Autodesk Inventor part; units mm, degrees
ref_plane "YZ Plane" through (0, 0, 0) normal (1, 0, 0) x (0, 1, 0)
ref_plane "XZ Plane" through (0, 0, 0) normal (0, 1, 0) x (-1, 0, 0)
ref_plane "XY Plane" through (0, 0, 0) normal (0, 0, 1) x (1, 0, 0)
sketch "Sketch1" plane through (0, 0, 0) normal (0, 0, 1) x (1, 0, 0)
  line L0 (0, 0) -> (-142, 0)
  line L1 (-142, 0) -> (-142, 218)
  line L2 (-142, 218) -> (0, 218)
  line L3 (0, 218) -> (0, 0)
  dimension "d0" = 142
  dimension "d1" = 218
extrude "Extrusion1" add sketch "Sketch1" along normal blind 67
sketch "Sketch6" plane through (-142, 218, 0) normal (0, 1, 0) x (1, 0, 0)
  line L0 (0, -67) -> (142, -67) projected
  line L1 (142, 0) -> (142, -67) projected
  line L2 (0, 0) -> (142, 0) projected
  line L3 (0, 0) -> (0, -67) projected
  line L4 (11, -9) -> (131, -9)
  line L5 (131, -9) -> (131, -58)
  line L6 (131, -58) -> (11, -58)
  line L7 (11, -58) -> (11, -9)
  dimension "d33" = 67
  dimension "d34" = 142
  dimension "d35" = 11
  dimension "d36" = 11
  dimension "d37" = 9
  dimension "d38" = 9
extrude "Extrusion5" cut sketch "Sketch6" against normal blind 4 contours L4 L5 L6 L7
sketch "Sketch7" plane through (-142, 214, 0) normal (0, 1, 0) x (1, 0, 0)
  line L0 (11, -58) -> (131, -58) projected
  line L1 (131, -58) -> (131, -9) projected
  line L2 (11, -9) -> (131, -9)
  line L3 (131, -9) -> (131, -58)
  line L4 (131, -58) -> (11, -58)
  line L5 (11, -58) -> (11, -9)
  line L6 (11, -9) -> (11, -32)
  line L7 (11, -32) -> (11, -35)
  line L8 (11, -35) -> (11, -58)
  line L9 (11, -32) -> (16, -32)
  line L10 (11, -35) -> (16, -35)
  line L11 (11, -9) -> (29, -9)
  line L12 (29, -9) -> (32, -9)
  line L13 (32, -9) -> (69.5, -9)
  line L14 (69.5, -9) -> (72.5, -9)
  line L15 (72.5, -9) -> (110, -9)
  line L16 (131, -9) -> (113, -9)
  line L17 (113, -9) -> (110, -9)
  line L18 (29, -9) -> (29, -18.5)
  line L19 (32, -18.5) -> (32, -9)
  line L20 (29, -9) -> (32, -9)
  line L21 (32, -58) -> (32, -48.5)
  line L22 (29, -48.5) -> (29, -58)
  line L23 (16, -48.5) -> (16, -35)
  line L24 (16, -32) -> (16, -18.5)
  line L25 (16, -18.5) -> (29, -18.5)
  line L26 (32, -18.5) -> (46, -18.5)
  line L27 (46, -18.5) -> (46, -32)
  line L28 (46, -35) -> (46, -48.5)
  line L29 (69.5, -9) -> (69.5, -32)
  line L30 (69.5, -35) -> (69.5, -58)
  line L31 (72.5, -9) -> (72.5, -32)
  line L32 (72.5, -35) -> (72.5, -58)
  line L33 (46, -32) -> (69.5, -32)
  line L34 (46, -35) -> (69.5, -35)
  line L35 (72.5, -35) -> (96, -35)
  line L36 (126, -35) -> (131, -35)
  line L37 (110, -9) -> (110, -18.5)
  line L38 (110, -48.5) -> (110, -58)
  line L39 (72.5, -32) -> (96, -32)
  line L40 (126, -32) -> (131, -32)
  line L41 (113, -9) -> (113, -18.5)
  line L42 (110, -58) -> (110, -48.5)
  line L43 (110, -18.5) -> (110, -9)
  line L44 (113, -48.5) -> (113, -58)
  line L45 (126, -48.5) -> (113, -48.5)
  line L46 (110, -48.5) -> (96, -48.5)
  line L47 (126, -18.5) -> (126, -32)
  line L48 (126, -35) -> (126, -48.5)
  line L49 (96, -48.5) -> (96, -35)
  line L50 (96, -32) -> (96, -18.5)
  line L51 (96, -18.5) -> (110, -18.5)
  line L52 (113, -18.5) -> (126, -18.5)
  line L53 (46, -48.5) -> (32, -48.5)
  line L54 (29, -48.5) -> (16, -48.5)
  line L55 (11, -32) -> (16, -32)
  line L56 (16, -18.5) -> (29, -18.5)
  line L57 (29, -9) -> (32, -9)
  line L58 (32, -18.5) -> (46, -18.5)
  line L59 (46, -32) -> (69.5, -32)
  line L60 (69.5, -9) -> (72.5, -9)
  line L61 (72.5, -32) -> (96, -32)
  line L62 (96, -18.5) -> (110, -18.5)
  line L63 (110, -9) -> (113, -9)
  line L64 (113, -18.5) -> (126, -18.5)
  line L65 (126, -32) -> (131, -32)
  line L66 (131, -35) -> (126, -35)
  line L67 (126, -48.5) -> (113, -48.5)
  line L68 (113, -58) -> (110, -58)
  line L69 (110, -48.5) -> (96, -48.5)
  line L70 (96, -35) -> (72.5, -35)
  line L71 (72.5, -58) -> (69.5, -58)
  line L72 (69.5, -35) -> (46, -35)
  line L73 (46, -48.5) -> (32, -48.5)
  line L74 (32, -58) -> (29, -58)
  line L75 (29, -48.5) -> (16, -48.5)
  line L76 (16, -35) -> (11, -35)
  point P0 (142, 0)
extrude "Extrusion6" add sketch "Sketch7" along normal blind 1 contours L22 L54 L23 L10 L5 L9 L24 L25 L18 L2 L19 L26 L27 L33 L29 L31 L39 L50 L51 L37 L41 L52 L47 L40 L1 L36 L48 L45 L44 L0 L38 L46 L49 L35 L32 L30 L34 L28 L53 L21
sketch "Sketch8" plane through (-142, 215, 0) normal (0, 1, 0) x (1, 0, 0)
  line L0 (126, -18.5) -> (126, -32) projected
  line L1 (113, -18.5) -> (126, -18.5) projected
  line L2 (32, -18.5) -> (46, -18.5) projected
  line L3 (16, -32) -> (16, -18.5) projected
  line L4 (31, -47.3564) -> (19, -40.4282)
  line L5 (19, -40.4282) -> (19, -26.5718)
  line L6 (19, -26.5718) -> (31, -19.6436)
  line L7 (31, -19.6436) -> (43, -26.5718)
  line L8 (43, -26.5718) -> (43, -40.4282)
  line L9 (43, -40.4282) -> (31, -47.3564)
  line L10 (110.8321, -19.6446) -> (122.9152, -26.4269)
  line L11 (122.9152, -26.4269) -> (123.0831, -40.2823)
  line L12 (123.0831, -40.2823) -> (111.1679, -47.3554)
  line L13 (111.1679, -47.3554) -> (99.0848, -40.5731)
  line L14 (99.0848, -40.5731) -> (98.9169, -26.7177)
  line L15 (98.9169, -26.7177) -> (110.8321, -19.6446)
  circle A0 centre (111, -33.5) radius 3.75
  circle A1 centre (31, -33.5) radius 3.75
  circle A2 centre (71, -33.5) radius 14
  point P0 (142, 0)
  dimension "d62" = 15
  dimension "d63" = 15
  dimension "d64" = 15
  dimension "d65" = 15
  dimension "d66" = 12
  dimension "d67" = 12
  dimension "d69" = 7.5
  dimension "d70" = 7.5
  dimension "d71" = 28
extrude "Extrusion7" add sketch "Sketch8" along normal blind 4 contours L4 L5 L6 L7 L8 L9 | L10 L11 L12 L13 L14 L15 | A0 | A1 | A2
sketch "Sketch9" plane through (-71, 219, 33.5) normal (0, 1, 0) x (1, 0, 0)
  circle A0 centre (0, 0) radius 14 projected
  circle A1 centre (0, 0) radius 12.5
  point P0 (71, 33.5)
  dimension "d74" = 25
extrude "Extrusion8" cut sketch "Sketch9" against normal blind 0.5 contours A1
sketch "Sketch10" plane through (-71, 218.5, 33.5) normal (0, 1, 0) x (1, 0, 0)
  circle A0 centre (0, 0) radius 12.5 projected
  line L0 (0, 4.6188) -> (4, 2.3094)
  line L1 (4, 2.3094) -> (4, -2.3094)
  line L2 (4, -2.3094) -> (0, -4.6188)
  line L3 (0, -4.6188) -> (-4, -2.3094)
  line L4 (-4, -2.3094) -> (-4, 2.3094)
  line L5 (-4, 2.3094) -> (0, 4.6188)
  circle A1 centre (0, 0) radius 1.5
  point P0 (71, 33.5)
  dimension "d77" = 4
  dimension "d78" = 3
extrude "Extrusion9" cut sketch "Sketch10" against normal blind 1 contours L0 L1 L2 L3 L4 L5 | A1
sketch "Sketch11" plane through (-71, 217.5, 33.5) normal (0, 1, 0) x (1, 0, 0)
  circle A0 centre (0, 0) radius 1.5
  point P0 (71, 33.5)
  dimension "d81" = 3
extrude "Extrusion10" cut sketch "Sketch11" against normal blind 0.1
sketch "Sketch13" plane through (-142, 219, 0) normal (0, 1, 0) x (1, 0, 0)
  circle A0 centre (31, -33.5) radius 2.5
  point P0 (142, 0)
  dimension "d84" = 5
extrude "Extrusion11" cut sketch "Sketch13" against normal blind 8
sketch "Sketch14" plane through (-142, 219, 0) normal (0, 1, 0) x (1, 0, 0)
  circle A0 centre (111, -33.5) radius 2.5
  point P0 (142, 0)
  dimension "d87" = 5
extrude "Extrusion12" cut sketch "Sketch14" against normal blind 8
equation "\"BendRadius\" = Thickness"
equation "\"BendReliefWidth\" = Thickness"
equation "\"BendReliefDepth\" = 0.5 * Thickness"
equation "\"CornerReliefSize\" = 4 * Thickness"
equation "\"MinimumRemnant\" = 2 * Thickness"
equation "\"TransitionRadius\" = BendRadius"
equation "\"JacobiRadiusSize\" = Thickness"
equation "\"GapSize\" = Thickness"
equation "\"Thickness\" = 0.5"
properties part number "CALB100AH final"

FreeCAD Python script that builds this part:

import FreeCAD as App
import Part
import Sketcher
Q = App.Units.Quantity


def add_polygon(sketch, points):
    """Adds a closed chain of lines whose ends are joined by coincident constraints."""
    first, n = sketch.GeometryCount, len(points)
    for a, b in zip(points, points[1:] + points[:1]):
        sketch.addGeometry(Part.LineSegment(App.Vector(*a, 0), App.Vector(*b, 0)), False)
    for i in range(n):
        sketch.addConstraint(Sketcher.Constraint("Coincident", first + i, 2, first + (i + 1) % n, 1))

doc = App.newDocument("Part")
body = doc.addObject("PartDesign::Body", "Body")

# Sketch on XY plane
sketch1 = doc.addObject("Sketcher::SketchObject", "Sketch")
body.addObject(sketch1)
sketch1.AttachmentSupport = (doc.XY_Plane, [""])
sketch1.MapMode = "FlatFace"
add_polygon(sketch1, [(-142, 0), (0, 0), (0, 218), (-142, 218)])  # lines 0-3
sketch1.addConstraint([
    Sketcher.Constraint("Horizontal", 0),
    Sketcher.Constraint("Vertical", 1),
    Sketcher.Constraint("Horizontal", 2),
    Sketcher.Constraint("Vertical", 3),
    Sketcher.Constraint("Coincident", 0, 2, -1, 1),
    Sketcher.Constraint("DistanceX", 0, 1, 0, 2, Q("142 mm")),
    Sketcher.Constraint("DistanceY", 1, 1, 1, 2, Q("218 mm")),
])
pad1 = doc.addObject("PartDesign::Pad", "Pad")
body.addObject(pad1)
pad1.Profile = sketch1
pad1.Length = 67

# Sketch on XZ plane
sketch2 = doc.addObject("Sketcher::SketchObject", "Sketch001")
body.addObject(sketch2)
sketch2.AttachmentSupport = (doc.XZ_Plane, [""])
sketch2.MapMode = "FlatFace"
sketch2.AttachmentOffset = App.Placement(App.Vector(0, 0, -218), App.Rotation())
add_polygon(sketch2, [(-11, 9), (-131, 9), (-131, 58), (-11, 58)])  # lines 0-3
sketch2.addConstraint([
    Sketcher.Constraint("Horizontal", 0),
    Sketcher.Constraint("Vertical", 1),
    Sketcher.Constraint("Horizontal", 2),
    Sketcher.Constraint("Vertical", 3),
    Sketcher.Constraint("DistanceY", -1, 1, 0, 2, Q("9 mm")),
    Sketcher.Constraint("DistanceX", 2, 2, -1, 1, Q("11 mm")),
    Sketcher.Constraint("DistanceX", 0, 2, 0, 1, Q("120 mm")),
    Sketcher.Constraint("DistanceY", 1, 1, 1, 2, Q("49 mm")),
])
pocket1 = doc.addObject("PartDesign::Pocket", "Pocket")
body.addObject(pocket1)
pocket1.Profile = sketch2
pocket1.Length = 4
pocket1.Reversed = True

# Sketch on XZ plane
sketch3 = doc.addObject("Sketcher::SketchObject", "Sketch002")
body.addObject(sketch3)
sketch3.AttachmentSupport = (doc.XZ_Plane, [""])
sketch3.MapMode = "FlatFace"
sketch3.AttachmentOffset = App.Placement(App.Vector(0, 0, -214), App.Rotation())
add_polygon(sketch3, [(-113, 48.5), (-113, 58), (-110, 58), (-110, 48.5), (-96, 48.5), (-96, 35), (-72.5, 35), (-72.5, 58), (-69.5, 58), (-69.5, 35), (-46, 35), (-46, 48.5), (-32, 48.5), (-32, 58), (-29, 58), (-29, 48.5), (-16, 48.5), (-16, 35), (-11, 35), (-11, 32), (-16, 32), (-16, 18.5), (-29, 18.5), (-29, 9), (-32, 9), (-32, 18.5), (-46, 18.5), (-46, 32), (-69.5, 32), (-69.5, 9), (-72.5, 9), (-72.5, 32), (-96, 32), (-96, 18.5), (-110, 18.5), (-110, 9), (-113, 9), (-113, 18.5), (-126, 18.5), (-126, 32), (-131, 32), (-131, 35), (-126, 35), (-126, 48.5)])  # lines 0-43
sketch3.addConstraint([
    Sketcher.Constraint("Vertical", 0),
    Sketcher.Constraint("Horizontal", 1),
    Sketcher.Constraint("Vertical", 2),
    Sketcher.Constraint("Horizontal", 3),
    Sketcher.Constraint("Vertical", 4),
    Sketcher.Constraint("Horizontal", 5),
    Sketcher.Constraint("Vertical", 6),
    Sketcher.Constraint("Horizontal", 7),
    Sketcher.Constraint("Vertical", 8),
    Sketcher.Constraint("Horizontal", 9),
    Sketcher.Constraint("Vertical", 10),
    Sketcher.Constraint("Horizontal", 11),
    Sketcher.Constraint("Vertical", 12),
    Sketcher.Constraint("Horizontal", 13),
    Sketcher.Constraint("Vertical", 14),
    Sketcher.Constraint("Horizontal", 15),
    Sketcher.Constraint("Vertical", 16),
    Sketcher.Constraint("Horizontal", 17),
    Sketcher.Constraint("Vertical", 18),
    Sketcher.Constraint("Horizontal", 19),
    Sketcher.Constraint("Vertical", 20),
    Sketcher.Constraint("Horizontal", 21),
    Sketcher.Constraint("Vertical", 22),
    Sketcher.Constraint("Horizontal", 23),
    Sketcher.Constraint("Vertical", 24),
    Sketcher.Constraint("Horizontal", 25),
    Sketcher.Constraint("Vertical", 26),
    Sketcher.Constraint("Horizontal", 27),
    Sketcher.Constraint("Vertical", 28),
    Sketcher.Constraint("Horizontal", 29),
    Sketcher.Constraint("Vertical", 30),
    Sketcher.Constraint("Horizontal", 31),
    Sketcher.Constraint("Vertical", 32),
    Sketcher.Constraint("Horizontal", 33),
    Sketcher.Constraint("Vertical", 34),
    Sketcher.Constraint("Horizontal", 35),
    Sketcher.Constraint("Vertical", 36),
    Sketcher.Constraint("Horizontal", 37),
    Sketcher.Constraint("Vertical", 38),
    Sketcher.Constraint("Horizontal", 39),
    Sketcher.Constraint("Vertical", 40),
    Sketcher.Constraint("Horizontal", 41),
    Sketcher.Constraint("Vertical", 42),
    Sketcher.Constraint("Horizontal", 43),
    Sketcher.Constraint("Horizontal", 1, 2, 6, 2),
    Sketcher.Constraint("Horizontal", 5, 2, 8, 2),
    Sketcher.Constraint("Horizontal", 3, 2, 10, 2),
    Sketcher.Constraint("Horizontal", 7, 2, 12, 2),
    Sketcher.Constraint("Horizontal", 11, 2, 14, 2),
    Sketcher.Constraint("Horizontal", 9, 2, 16, 2),
    Sketcher.Constraint("Horizontal", 21, 2, 24, 2),
    Sketcher.Constraint("Horizontal", 19, 2, 26, 2),
    Sketcher.Constraint("Horizontal", 23, 2, 28, 2),
    Sketcher.Constraint("Horizontal", 27, 2, 30, 2),
    Sketcher.Constraint("Horizontal", 25, 2, 32, 2),
    Sketcher.Constraint("Horizontal", 29, 2, 34, 2),
    Sketcher.Constraint("Horizontal", 33, 2, 36, 2),
    Sketcher.Constraint("Horizontal", 31, 2, 38, 2),
    Sketcher.Constraint("Horizontal", 17, 2, 40, 2),
    Sketcher.Constraint("Horizontal", 15, 2, 42, 2),
    Sketcher.Constraint("Vertical", 16, 2, 19, 2),
    Sketcher.Constraint("Vertical", 14, 2, 21, 2),
    Sketcher.Constraint("Vertical", 12, 2, 23, 2),
    Sketcher.Constraint("Vertical", 10, 2, 25, 2),
    Sketcher.Constraint("Vertical", 8, 2, 27, 2),
    Sketcher.Constraint("Vertical", 6, 2, 29, 2),
    Sketcher.Constraint("Vertical", 4, 2, 31, 2),
    Sketcher.Constraint("Vertical", 2, 2, 33, 2),
    Sketcher.Constraint("Vertical", 0, 2, 35, 2),
    Sketcher.Constraint("Vertical", 38, 2, 41, 2),
    Sketcher.Constraint("Equal", 1, 7),
    Sketcher.Constraint("Equal", 5, 9),
    Sketcher.Constraint("Equal", 3, 11),
    Sketcher.Constraint("Equal", 7, 13),
    Sketcher.Constraint("Equal", 21, 37),
    Sketcher.Constraint("Equal", 19, 39),
    Sketcher.Constraint("Equal", 35, 18),
    Sketcher.Constraint("Equal", 16, 20),
    Sketcher.Constraint("Equal", 14, 22),
    Sketcher.Constraint("DistanceX", 1, 1, 1, 2, Q("3 mm")),
    Sketcher.Constraint("DistanceX", 3, 1, 3, 2, Q("14 mm")),
    Sketcher.Constraint("DistanceX", 15, 1, 15, 2, Q("13 mm")),
    Sketcher.Constraint("DistanceX", 17, 1, 17, 2, Q("5 mm")),
    Sketcher.Constraint("DistanceY", 6, 1, 6, 2, Q("23 mm")),
    Sketcher.Constraint("DistanceX", 5, 1, 5, 2, Q("23.5 mm")),
    Sketcher.Constraint("DistanceY", 0, 1, 0, 2, Q("9.5 mm")),
    Sketcher.Constraint("DistanceX", 0, 2, -1, 1, Q("113 mm")),
    Sketcher.Constraint("DistanceY", -1, 1, 0, 2, Q("58 mm")),
])
pad2 = doc.addObject("PartDesign::Pad", "Pad001")
body.addObject(pad2)
pad2.Profile = sketch3
pad2.Length = 1
pad2.Reversed = True

# Sketch on XZ plane
sketch4 = doc.addObject("Sketcher::SketchObject", "Sketch003")
body.addObject(sketch4)
sketch4.AttachmentSupport = (doc.XZ_Plane, [""])
sketch4.MapMode = "FlatFace"
sketch4.AttachmentOffset = App.Placement(App.Vector(0, 0, -215), App.Rotation())
add_polygon(sketch4, [(-123, 40), (-111, 47), (-99, 40), (-99, 27), (-111, 20), (-123, 27)])  # lines 0-5
add_polygon(sketch4, [(-19, 26), (-31, 20), (-43, 27), (-43, 41), (-31, 47), (-19, 40)])  # lines 6-11
sketch4.addGeometry(Part.Circle(App.Vector(-71, 34, 0), App.Vector(0, 0, 1), 14), False)  # 12
sketch4.addConstraint([
    Sketcher.Constraint("Vertical", 2),
    Sketcher.Constraint("Vertical", 5),
    Sketcher.Constraint("Parallel", 0, 3),
    Sketcher.Constraint("Parallel", 1, 4),
    Sketcher.Constraint("Parallel", 6, 9),
    Sketcher.Constraint("Parallel", 7, 10),
    Sketcher.Constraint("Parallel", 8, 11),
    Sketcher.Constraint("Horizontal", 2, 2, 4, 2),
    Sketcher.Constraint("Horizontal", 1, 2, 5, 2),
    Sketcher.Constraint("Vertical", 0, 2, 3, 2),
    Sketcher.Constraint("Equal", 4, 6),
    Sketcher.Constraint("Equal", 6, 7),
    Sketcher.Constraint("Equal", 7, 8),
    Sketcher.Constraint("Equal", 8, 9),
    Sketcher.Constraint("Diameter", 12, Q("28 mm")),
    Sketcher.Constraint("DistanceX", 0, 2, 1, 2, Q("12 mm")),
    Sketcher.Constraint("DistanceX", 1, 2, 12, 3, Q("28 mm")),
    Sketcher.Constraint("Angle", 0, Q("30 deg")),
    Sketcher.Constraint("DistanceX", 12, 3, -1, 1, Q("71 mm")),
    Sketcher.Constraint("DistanceY", -1, 1, 12, 3, Q("33.5 mm")),
    Sketcher.Constraint("DistanceY", 2, 2, 2, 1, Q("13.8564 mm")),
    Sketcher.Constraint("DistanceX", 6, 2, -1, 1, Q("31.168 mm")),
    Sketcher.Constraint("DistanceX", 7, 2, -1, 1, Q("43.083 mm")),
    Sketcher.Constraint("DistanceY", -1, 1, 8, 2, Q("40.573 mm")),
    Sketcher.Constraint("DistanceX", 9, 2, -1, 1, Q("30.832 mm")),
    Sketcher.Constraint("DistanceY", -1, 1, 11, 2, Q("26.427 mm")),
    Sketcher.Constraint("DistanceY", 3, 2, 6, 2, Q("0.001 mm")),
])
pad3 = doc.addObject("PartDesign::Pad", "Pad002")
body.addObject(pad3)
pad3.Profile = sketch4
pad3.Length = 4
pad3.Reversed = True

# Sketch on XZ plane
sketch5 = doc.addObject("Sketcher::SketchObject", "Sketch004")
body.addObject(sketch5)
sketch5.AttachmentSupport = (doc.XZ_Plane, [""])
sketch5.MapMode = "FlatFace"
sketch5.AttachmentOffset = App.Placement(App.Vector(0, 0, -219), App.Rotation())
sketch5.addGeometry(Part.Circle(App.Vector(-71, 34, 0), App.Vector(0, 0, 1), 12), False)
sketch5.addConstraint([
    Sketcher.Constraint("Diameter", 0, Q("25 mm")),
    Sketcher.Constraint("DistanceX", 0, 3, -1, 1, Q("71 mm")),
    Sketcher.Constraint("DistanceY", -1, 1, 0, 3, Q("33.5 mm")),
])
pocket2 = doc.addObject("PartDesign::Pocket", "Pocket001")
body.addObject(pocket2)
pocket2.Profile = sketch5
pocket2.Length = 0.5
pocket2.Reversed = True

# Sketch on XZ plane
sketch6 = doc.addObject("Sketcher::SketchObject", "Sketch005")
body.addObject(sketch6)
sketch6.AttachmentSupport = (doc.XZ_Plane, [""])
sketch6.MapMode = "FlatFace"
sketch6.AttachmentOffset = App.Placement(App.Vector(0, 0, -218.5), App.Rotation())
add_polygon(sketch6, [(-67, 31.2), (-71, 28.9), (-75, 31.2), (-75, 35.8), (-71, 38.1), (-67, 35.8)])  # lines 0-5
sketch6.addConstraint([
    Sketcher.Constraint("Vertical", 2),
    Sketcher.Constraint("Vertical", 5),
    Sketcher.Constraint("Parallel", 0, 3),
    Sketcher.Constraint("Parallel", 1, 4),
    Sketcher.Constraint("Horizontal", 2, 2, 4, 2),
    Sketcher.Constraint("Horizontal", 1, 2, 5, 2),
    Sketcher.Constraint("Vertical", 0, 2, 3, 2),
    Sketcher.Constraint("DistanceX", 1, 2, 0, 2, Q("4 mm")),
    Sketcher.Constraint("Angle", 0, Q("-150 deg")),
    Sketcher.Constraint("DistanceX", 0, 2, -1, 1, Q("71 mm")),
    Sketcher.Constraint("DistanceY", 2, 1, 2, 2, Q("4.6188 mm")),
    Sketcher.Constraint("DistanceY", -1, 1, 0, 2, Q("28.8812 mm")),
])
pocket3 = doc.addObject("PartDesign::Pocket", "Pocket002")
body.addObject(pocket3)
pocket3.Profile = sketch6
pocket3.Length = 1
pocket3.Reversed = True

# Sketch on XZ plane
sketch7 = doc.addObject("Sketcher::SketchObject", "Sketch006")
body.addObject(sketch7)
sketch7.AttachmentSupport = (doc.XZ_Plane, [""])
sketch7.MapMode = "FlatFace"
sketch7.AttachmentOffset = App.Placement(App.Vector(0, 0, -217.5), App.Rotation())
sketch7.addGeometry(Part.Circle(App.Vector(-71, 33.5, 0), App.Vector(0, 0, 1), 1.5), False)
sketch7.addConstraint([
    Sketcher.Constraint("Diameter", 0, Q("3 mm")),
    Sketcher.Constraint("DistanceX", 0, 3, -1, 1, Q("71 mm")),
    Sketcher.Constraint("DistanceY", -1, 1, 0, 3, Q("33.5 mm")),
])
pocket4 = doc.addObject("PartDesign::Pocket", "Pocket003")
body.addObject(pocket4)
pocket4.Profile = sketch7
pocket4.Length = 0.1
pocket4.Reversed = True

# Sketch on XZ plane
sketch8 = doc.addObject("Sketcher::SketchObject", "Sketch007")
body.addObject(sketch8)
sketch8.AttachmentSupport = (doc.XZ_Plane, [""])
sketch8.MapMode = "FlatFace"
sketch8.AttachmentOffset = App.Placement(App.Vector(0, 0, -219), App.Rotation())
sketch8.addGeometry(Part.Circle(App.Vector(-111, 33.5, 0), App.Vector(0, 0, 1), 2.5), False)
sketch8.addConstraint([
    Sketcher.Constraint("Diameter", 0, Q("5 mm")),
    Sketcher.Constraint("DistanceX", 0, 3, -1, 1, Q("111 mm")),
    Sketcher.Constraint("DistanceY", -1, 1, 0, 3, Q("33.5 mm")),
])
pocket5 = doc.addObject("PartDesign::Pocket", "Pocket004")
body.addObject(pocket5)
pocket5.Profile = sketch8
pocket5.Length = 8
pocket5.Reversed = True

# Sketch on XZ plane
sketch9 = doc.addObject("Sketcher::SketchObject", "Sketch008")
body.addObject(sketch9)
sketch9.AttachmentSupport = (doc.XZ_Plane, [""])
sketch9.MapMode = "FlatFace"
sketch9.AttachmentOffset = App.Placement(App.Vector(0, 0, -219), App.Rotation())
sketch9.addGeometry(Part.Circle(App.Vector(-31, 33.5, 0), App.Vector(0, 0, 1), 2.5), False)
sketch9.addConstraint([
    Sketcher.Constraint("Diameter", 0, Q("5 mm")),
    Sketcher.Constraint("DistanceX", 0, 3, -1, 1, Q("31 mm")),
    Sketcher.Constraint("DistanceY", -1, 1, 0, 3, Q("33.5 mm")),
])
pocket6 = doc.addObject("PartDesign::Pocket", "Pocket005")
body.addObject(pocket6)
pocket6.Profile = sketch9
pocket6.Length = 8
pocket6.Reversed = True

doc.recompute()
